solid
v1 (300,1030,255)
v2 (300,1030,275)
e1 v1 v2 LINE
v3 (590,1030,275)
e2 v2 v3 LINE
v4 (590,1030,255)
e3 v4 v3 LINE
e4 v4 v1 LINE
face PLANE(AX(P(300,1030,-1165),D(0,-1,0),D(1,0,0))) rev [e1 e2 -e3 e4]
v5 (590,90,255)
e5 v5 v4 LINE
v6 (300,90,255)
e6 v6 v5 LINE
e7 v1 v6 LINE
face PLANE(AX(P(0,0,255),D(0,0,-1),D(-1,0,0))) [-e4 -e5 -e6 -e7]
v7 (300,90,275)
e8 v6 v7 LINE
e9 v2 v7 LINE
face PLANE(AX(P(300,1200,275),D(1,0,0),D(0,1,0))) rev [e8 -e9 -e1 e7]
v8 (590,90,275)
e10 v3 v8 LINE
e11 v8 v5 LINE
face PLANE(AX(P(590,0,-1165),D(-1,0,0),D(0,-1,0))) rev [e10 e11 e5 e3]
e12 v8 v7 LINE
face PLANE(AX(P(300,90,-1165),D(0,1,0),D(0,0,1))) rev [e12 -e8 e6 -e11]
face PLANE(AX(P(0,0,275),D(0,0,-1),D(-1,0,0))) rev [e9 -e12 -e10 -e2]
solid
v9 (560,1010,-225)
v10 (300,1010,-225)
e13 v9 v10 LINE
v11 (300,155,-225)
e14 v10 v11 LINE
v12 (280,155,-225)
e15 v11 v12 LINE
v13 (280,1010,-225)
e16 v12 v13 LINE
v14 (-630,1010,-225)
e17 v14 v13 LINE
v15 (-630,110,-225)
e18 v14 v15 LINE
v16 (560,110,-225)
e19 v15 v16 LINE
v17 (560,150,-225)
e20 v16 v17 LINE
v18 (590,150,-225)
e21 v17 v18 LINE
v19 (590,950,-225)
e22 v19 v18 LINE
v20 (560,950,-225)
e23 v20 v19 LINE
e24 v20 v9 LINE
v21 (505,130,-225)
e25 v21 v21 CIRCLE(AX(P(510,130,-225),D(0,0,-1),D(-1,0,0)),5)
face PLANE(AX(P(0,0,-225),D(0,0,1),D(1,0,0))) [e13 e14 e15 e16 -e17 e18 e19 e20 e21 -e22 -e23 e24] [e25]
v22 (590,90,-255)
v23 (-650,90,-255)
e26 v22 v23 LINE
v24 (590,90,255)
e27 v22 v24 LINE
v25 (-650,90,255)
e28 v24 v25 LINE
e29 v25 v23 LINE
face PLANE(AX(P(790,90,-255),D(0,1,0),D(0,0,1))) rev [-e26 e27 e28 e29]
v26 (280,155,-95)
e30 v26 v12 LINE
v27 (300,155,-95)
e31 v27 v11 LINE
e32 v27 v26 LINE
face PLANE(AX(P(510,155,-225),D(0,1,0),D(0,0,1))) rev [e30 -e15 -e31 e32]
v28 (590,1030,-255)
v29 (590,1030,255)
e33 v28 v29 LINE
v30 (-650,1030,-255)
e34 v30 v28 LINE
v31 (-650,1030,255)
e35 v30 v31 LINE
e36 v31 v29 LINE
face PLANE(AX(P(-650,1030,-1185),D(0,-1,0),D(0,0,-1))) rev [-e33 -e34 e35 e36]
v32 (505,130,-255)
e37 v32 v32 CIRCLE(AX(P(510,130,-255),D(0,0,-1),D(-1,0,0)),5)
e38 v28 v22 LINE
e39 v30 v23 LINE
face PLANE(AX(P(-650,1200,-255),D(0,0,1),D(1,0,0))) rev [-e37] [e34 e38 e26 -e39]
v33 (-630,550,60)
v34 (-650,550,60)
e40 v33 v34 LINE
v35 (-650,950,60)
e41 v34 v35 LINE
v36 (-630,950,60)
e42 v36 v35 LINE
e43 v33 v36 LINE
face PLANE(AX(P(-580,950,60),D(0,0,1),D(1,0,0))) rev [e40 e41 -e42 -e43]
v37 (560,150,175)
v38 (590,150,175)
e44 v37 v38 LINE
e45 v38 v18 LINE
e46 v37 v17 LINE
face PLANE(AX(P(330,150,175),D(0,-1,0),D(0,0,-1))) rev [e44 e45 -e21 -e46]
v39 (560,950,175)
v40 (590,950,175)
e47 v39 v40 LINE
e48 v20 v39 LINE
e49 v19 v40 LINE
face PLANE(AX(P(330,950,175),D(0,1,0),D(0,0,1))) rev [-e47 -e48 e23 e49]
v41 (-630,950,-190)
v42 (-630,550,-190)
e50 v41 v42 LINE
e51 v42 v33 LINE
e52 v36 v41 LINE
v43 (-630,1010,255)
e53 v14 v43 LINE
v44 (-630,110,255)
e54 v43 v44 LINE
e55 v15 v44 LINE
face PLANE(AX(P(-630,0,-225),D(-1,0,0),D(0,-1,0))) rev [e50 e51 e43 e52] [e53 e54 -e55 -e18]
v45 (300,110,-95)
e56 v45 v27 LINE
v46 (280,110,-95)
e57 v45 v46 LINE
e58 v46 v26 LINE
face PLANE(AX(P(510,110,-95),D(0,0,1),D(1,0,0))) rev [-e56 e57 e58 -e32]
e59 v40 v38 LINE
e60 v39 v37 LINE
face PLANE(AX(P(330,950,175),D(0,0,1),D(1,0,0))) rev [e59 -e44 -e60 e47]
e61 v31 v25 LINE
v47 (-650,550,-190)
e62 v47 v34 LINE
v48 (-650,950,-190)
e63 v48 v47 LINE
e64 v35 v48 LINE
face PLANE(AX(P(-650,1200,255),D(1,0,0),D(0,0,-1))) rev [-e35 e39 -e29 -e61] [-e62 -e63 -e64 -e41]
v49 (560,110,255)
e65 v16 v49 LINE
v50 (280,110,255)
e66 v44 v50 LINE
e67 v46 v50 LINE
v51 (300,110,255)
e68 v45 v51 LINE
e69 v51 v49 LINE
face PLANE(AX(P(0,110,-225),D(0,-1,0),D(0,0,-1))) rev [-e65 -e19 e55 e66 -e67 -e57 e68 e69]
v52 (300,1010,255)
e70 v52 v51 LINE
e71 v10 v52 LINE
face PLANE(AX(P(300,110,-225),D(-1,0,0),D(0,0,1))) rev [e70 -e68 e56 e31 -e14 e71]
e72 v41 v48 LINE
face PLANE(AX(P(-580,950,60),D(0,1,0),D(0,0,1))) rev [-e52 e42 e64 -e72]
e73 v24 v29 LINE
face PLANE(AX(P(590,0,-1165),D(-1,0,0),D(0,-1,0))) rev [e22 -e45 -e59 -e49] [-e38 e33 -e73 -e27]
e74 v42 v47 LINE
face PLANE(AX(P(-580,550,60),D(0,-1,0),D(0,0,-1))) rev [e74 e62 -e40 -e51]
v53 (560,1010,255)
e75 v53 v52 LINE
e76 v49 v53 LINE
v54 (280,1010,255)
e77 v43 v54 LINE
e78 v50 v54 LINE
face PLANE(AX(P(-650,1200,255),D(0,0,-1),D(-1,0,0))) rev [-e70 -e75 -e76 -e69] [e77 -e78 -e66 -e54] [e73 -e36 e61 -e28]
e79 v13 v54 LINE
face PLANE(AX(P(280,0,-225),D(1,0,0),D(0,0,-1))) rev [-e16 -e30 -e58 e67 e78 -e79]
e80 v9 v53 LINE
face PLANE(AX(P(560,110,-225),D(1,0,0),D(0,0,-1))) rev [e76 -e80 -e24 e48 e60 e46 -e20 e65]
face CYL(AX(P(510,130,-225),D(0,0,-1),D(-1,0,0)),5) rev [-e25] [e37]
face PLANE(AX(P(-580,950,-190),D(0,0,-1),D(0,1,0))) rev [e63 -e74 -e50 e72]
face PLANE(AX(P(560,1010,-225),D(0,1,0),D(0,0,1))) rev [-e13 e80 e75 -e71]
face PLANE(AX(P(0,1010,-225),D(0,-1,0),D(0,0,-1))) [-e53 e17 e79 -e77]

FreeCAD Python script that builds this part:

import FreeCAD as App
import Part
import Sketcher
from FreeCAD import Vector


def add_polygon(sketch, points):
    """Adds a closed chain of lines whose ends are joined by coincident constraints."""
    first, n = sketch.GeometryCount, len(points)
    for a, b in zip(points, points[1:] + points[:1]):
        sketch.addGeometry(Part.LineSegment(App.Vector(*a, 0), App.Vector(*b, 0)), False)
    for i in range(n):
        sketch.addConstraint(Sketcher.Constraint("Coincident", first + i, 2, first + (i + 1) % n, 1))

doc = App.newDocument("Part")
params = doc.addObject("Spreadsheet::Sheet", "Params")
for row, (alias, value) in enumerate([
    ("sketch1_width", "1300 mm"),
    ("sketch1_height", "510 mm"),
    ("pad1_length", "1200 mm"),
    ("sketch2_width", "910 mm"),
    ("sketch2_height", "900 mm"),
    ("pocket1_length", "480 mm"),
    ("sketch3_width", "400 mm"),
    ("sketch3_height", "250 mm"),
    ("pocket2_length", "70 mm"),
    ("sketch4_width", "260 mm"),
    ("sketch4_height", "900 mm"),
    ("pocket3_length", "480 mm"),
    ("sketch5_width", "800 mm"),
    ("sketch5_height", "400 mm"),
    ("pocket4_length", "320 mm"),
    ("sketch6_width", "45 mm"),
    ("sketch6_height", "130 mm"),
    ("pocket5_length", "230 mm"),
    ("sketch7_width", "90 mm"),
    ("sketch7_height", "510 mm"),
    ("pocket6_length", "1440 mm"),
    ("sketch8_width", "350 mm"),
    ("sketch8_height", "1200 mm"),
    ("pad2_length", "20 mm"),
    ("sketch9_width", "60 mm"),
    ("sketch9_height", "1200 mm"),
    ("pad3_length", "1440 mm"),
    ("sketch10_height", "170 mm"),
    ("pocket7_length", "1440 mm"),
    ("sketch11_diameter", "10 mm"),
    ("pocket8_length", "30 mm"),
    ("sketch12_width", "290 mm"),
    ("sketch12_height", "90 mm"),
    ("pocket9_length", "1440 mm"),
    ("sketch13_width", "290 mm"),
    ("sketch13_height", "70 mm"),
    ("pocket10_length", "1440 mm"),
    ("sketch14_width", "290 mm"),
    ("sketch14_height", "100 mm"),
    ("pocket11_length", "1440 mm"),
], start=1):
    params.set(f"A{row}", alias)
    params.set(f"B{row}", "=" + value)
    params.setAlias(f"B{row}", alias)

body = doc.addObject("PartDesign::Body", "Body")

sketch1 = body.newObject("Sketcher::SketchObject", "Sketch")
sketch1.AttachmentSupport = (doc.getObject("XZ_Plane"), [""])
sketch1.MapMode = "FlatFace"
add_polygon(sketch1, [(-650, -255), (-650, 255), (650, 255), (650, -255)])
sketch1.addConstraint(Sketcher.Constraint("Vertical", 0))
sketch1.addConstraint(Sketcher.Constraint("Horizontal", 1))
sketch1.addConstraint(Sketcher.Constraint("Vertical", 2))
sketch1.addConstraint(Sketcher.Constraint("Horizontal", 3))
sketch1.addConstraint(Sketcher.Constraint("Symmetric", 0, 2, 2, 2, -1, 1))
sketch1.addConstraint(Sketcher.Constraint("DistanceX", 1, 1, 1, 2, 1300.0))
sketch1.addConstraint(Sketcher.Constraint("DistanceY", 0, 1, 0, 2, 510.0))
sketch1.setExpression("Constraints[9]", "Params.sketch1_width")
sketch1.setExpression("Constraints[10]", "Params.sketch1_height")
pad1 = body.newObject("PartDesign::Pad", "Pad")
pad1.Profile = sketch1
pad1.setExpression("Length", "Params.pad1_length")
pad1.Reversed = True

sketch2 = body.newObject("Sketcher::SketchObject", "Sketch001")
sketch2.AttachmentSupport = (doc.getObject("XY_Plane"), [""])
sketch2.MapMode = "FlatFace"
sketch2.AttachmentOffset = App.Placement(Vector(0, 0, 255), App.Rotation())
add_polygon(sketch2, [(-630, 1010), (-630, 110), (280, 110), (280, 1010)])
sketch2.addConstraint(Sketcher.Constraint("Vertical", 0))
sketch2.addConstraint(Sketcher.Constraint("Horizontal", 1))
sketch2.addConstraint(Sketcher.Constraint("Vertical", 2))
sketch2.addConstraint(Sketcher.Constraint("Horizontal", 3))
sketch2.addConstraint(Sketcher.Constraint("DistanceX", 1, 1, 1, 2, 910.0))
sketch2.addConstraint(Sketcher.Constraint("DistanceY", 0, 2, 0, 1, 900.0))
sketch2.addConstraint(Sketcher.Constraint("DistanceX", 0, 2, -1, 1, 630.0))
sketch2.addConstraint(Sketcher.Constraint("DistanceY", -1, 1, 0, 2, 110.0))
sketch2.setExpression("Constraints[8]", "Params.sketch2_width")
sketch2.setExpression("Constraints[9]", "Params.sketch2_height")
pocket1 = body.newObject("PartDesign::Pocket", "Pocket")
pocket1.Profile = sketch2
pocket1.setExpression("Length", "Params.pocket1_length")

sketch3 = body.newObject("Sketcher::SketchObject", "Sketch002")
sketch3.AttachmentSupport = (doc.getObject("YZ_Plane"), [""])
sketch3.MapMode = "FlatFace"
sketch3.AttachmentOffset = App.Placement(Vector(0, 0, -650), App.Rotation())
add_polygon(sketch3, [(950, -190), (550, -190), (550, 60), (950, 60)])
sketch3.addConstraint(Sketcher.Constraint("Horizontal", 0))
sketch3.addConstraint(Sketcher.Constraint("Vertical", 1))
sketch3.addConstraint(Sketcher.Constraint("Horizontal", 2))
sketch3.addConstraint(Sketcher.Constraint("Vertical", 3))
sketch3.addConstraint(Sketcher.Constraint("DistanceX", 0, 2, 0, 1, 400.0))
sketch3.addConstraint(Sketcher.Constraint("DistanceY", 1, 1, 1, 2, 250.0))
sketch3.addConstraint(Sketcher.Constraint("DistanceX", -1, 1, 0, 2, 550.0))
sketch3.addConstraint(Sketcher.Constraint("DistanceY", 0, 2, -1, 1, 190.0))
sketch3.setExpression("Constraints[8]", "Params.sketch3_width")
sketch3.setExpression("Constraints[9]", "Params.sketch3_height")
pocket2 = body.newObject("PartDesign::Pocket", "Pocket001")
pocket2.Profile = sketch3
pocket2.setExpression("Length", "Params.pocket2_length")
pocket2.Reversed = True

sketch4 = body.newObject("Sketcher::SketchObject", "Sketch003")
sketch4.AttachmentSupport = (doc.getObject("XY_Plane"), [""])
sketch4.MapMode = "FlatFace"
sketch4.AttachmentOffset = App.Placement(Vector(0, 0, 255), App.Rotation())
add_polygon(sketch4, [(300, 1010), (300, 110), (560, 110), (560, 1010)])
sketch4.addConstraint(Sketcher.Constraint("Vertical", 0))
sketch4.addConstraint(Sketcher.Constraint("Horizontal", 1))
sketch4.addConstraint(Sketcher.Constraint("Vertical", 2))
sketch4.addConstraint(Sketcher.Constraint("Horizontal", 3))
sketch4.addConstraint(Sketcher.Constraint("DistanceX", 1, 1, 1, 2, 260.0))
sketch4.addConstraint(Sketcher.Constraint("DistanceY", 0, 2, 0, 1, 900.0))
sketch4.addConstraint(Sketcher.Constraint("DistanceX", -1, 1, 0, 2, 300.0))
sketch4.addConstraint(Sketcher.Constraint("DistanceY", -1, 1, 0, 2, 110.0))
sketch4.setExpression("Constraints[8]", "Params.sketch4_width")
sketch4.setExpression("Constraints[9]", "Params.sketch4_height")
pocket3 = body.newObject("PartDesign::Pocket", "Pocket002")
pocket3.Profile = sketch4
pocket3.setExpression("Length", "Params.pocket3_length")

sketch5 = body.newObject("Sketcher::SketchObject", "Sketch004")
sketch5.AttachmentSupport = (doc.getObject("YZ_Plane"), [""])
sketch5.MapMode = "FlatFace"
sketch5.AttachmentOffset = App.Placement(Vector(0, 0, 650), App.Rotation())
add_polygon(sketch5, [(950, 175), (150, 175), (150, -225), (950, -225)])
sketch5.addConstraint(Sketcher.Constraint("Horizontal", 0))
sketch5.addConstraint(Sketcher.Constraint("Vertical", 1))
sketch5.addConstraint(Sketcher.Constraint("Horizontal", 2))
sketch5.addConstraint(Sketcher.Constraint("Vertical", 3))
sketch5.addConstraint(Sketcher.Constraint("DistanceX", 0, 2, 0, 1, 800.0))
sketch5.addConstraint(Sketcher.Constraint("DistanceY", 1, 2, 1, 1, 400.0))
sketch5.addConstraint(Sketcher.Constraint("DistanceX", -1, 1, 0, 2, 150.0))
sketch5.addConstraint(Sketcher.Constraint("DistanceY", -1, 1, 0, 2, 175.0))
sketch5.setExpression("Constraints[8]", "Params.sketch5_width")
sketch5.setExpression("Constraints[9]", "Params.sketch5_height")
pocket4 = body.newObject("PartDesign::Pocket", "Pocket003")
pocket4.Profile = sketch5
pocket4.setExpression("Length", "Params.pocket4_length")

sketch6 = body.newObject("Sketcher::SketchObject", "Sketch005")
sketch6.AttachmentSupport = (doc.getObject("YZ_Plane"), [""])
sketch6.MapMode = "FlatFace"
sketch6.AttachmentOffset = App.Placement(Vector(0, 0, 280), App.Rotation())
add_polygon(sketch6, [(155, -225), (110, -225), (110, -95), (155, -95)])
sketch6.addConstraint(Sketcher.Constraint("Horizontal", 0))
sketch6.addConstraint(Sketcher.Constraint("Vertical", 1))
sketch6.addConstraint(Sketcher.Constraint("Horizontal", 2))
sketch6.addConstraint(Sketcher.Constraint("Vertical", 3))
sketch6.addConstraint(Sketcher.Constraint("DistanceX", 0, 2, 0, 1, 45.0))
sketch6.addConstraint(Sketcher.Constraint("DistanceY", 1, 1, 1, 2, 130.0))
sketch6.addConstraint(Sketcher.Constraint("DistanceX", -1, 1, 0, 2, 110.0))
sketch6.addConstraint(Sketcher.Constraint("DistanceY", 0, 2, -1, 1, 225.0))
sketch6.setExpression("Constraints[8]", "Params.sketch6_width")
sketch6.setExpression("Constraints[9]", "Params.sketch6_height")
pocket5 = body.newObject("PartDesign::Pocket", "Pocket004")
pocket5.Profile = sketch6
pocket5.setExpression("Length", "Params.pocket5_length")
pocket5.Reversed = True

sketch7 = body.newObject("Sketcher::SketchObject", "Sketch006")
sketch7.AttachmentSupport = (doc.getObject("YZ_Plane"), [""])
sketch7.MapMode = "FlatFace"
sketch7.AttachmentOffset = App.Placement(Vector(0, 0, -650), App.Rotation())
add_polygon(sketch7, [(90, -255), (0, -255), (0, 255), (90, 255)])
sketch7.addConstraint(Sketcher.Constraint("Horizontal", 0))
sketch7.addConstraint(Sketcher.Constraint("Vertical", 1))
sketch7.addConstraint(Sketcher.Constraint("Horizontal", 2))
sketch7.addConstraint(Sketcher.Constraint("Vertical", 3))
sketch7.addConstraint(Sketcher.Constraint("Symmetric", 0, 2, 1, 2, -1, 1))
sketch7.addConstraint(Sketcher.Constraint("DistanceX", 0, 2, 0, 1, 90.0))
sketch7.addConstraint(Sketcher.Constraint("DistanceY", 1, 1, 1, 2, 510.0))
sketch7.setExpression("Constraints[9]", "Params.sketch7_width")
sketch7.setExpression("Constraints[10]", "Params.sketch7_height")
pocket6 = body.newObject("PartDesign::Pocket", "Pocket005")
pocket6.Profile = sketch7
pocket6.setExpression("Length", "Params.pocket6_length")
pocket6.Reversed = True
body2 = doc.addObject("PartDesign::Body", "Body001")

sketch8 = body2.newObject("Sketcher::SketchObject", "Sketch007")
sketch8.AttachmentSupport = (doc.getObject("XY_Plane001"), [""])
sketch8.MapMode = "FlatFace"
sketch8.AttachmentOffset = App.Placement(Vector(0, 0, 255), App.Rotation())
add_polygon(sketch8, [(300, 1200), (300, 0), (650, 0), (650, 1200)])
sketch8.addConstraint(Sketcher.Constraint("Vertical", 0))
sketch8.addConstraint(Sketcher.Constraint("Horizontal", 1))
sketch8.addConstraint(Sketcher.Constraint("Vertical", 2))
sketch8.addConstraint(Sketcher.Constraint("Horizontal", 3))
sketch8.addConstraint(Sketcher.Constraint("PointOnObject", 0, 2, -1))
sketch8.addConstraint(Sketcher.Constraint("DistanceX", 1, 1, 1, 2, 350.0))
sketch8.addConstraint(Sketcher.Constraint("DistanceY", 0, 2, 0, 1, 1200.0))
sketch8.addConstraint(Sketcher.Constraint("DistanceX", -1, 1, 0, 2, 300.0))
sketch8.setExpression("Constraints[9]", "Params.sketch8_width")
sketch8.setExpression("Constraints[10]", "Params.sketch8_height")
pad2 = body2.newObject("PartDesign::Pad", "Pad001")
pad2.Profile = sketch8
pad2.setExpression("Length", "Params.pad2_length")
body3 = doc.addObject("PartDesign::Body", "Body002")

sketch9 = body3.newObject("Sketcher::SketchObject", "Sketch008")
sketch9.AttachmentSupport = (doc.getObject("XY_Plane002"), [""])
sketch9.MapMode = "FlatFace"
sketch9.AttachmentOffset = App.Placement(Vector(0, 0, 275), App.Rotation())
add_polygon(sketch9, [(650, 1200), (590, 1200), (590, 0), (650, 0)])
sketch9.addConstraint(Sketcher.Constraint("Horizontal", 0))
sketch9.addConstraint(Sketcher.Constraint("Vertical", 1))
sketch9.addConstraint(Sketcher.Constraint("Horizontal", 2))
sketch9.addConstraint(Sketcher.Constraint("Vertical", 3))
sketch9.addConstraint(Sketcher.Constraint("PointOnObject", 1, 2, -1))
sketch9.addConstraint(Sketcher.Constraint("DistanceX", 0, 2, 0, 1, 60.0))
sketch9.addConstraint(Sketcher.Constraint("DistanceY", 1, 2, 1, 1, 1200.0))
sketch9.addConstraint(Sketcher.Constraint("DistanceX", -1, 1, 0, 2, 590.0))
sketch9.setExpression("Constraints[9]", "Params.sketch9_width")
sketch9.setExpression("Constraints[10]", "Params.sketch9_height")
pad3 = body3.newObject("PartDesign::Pad", "Pad002")
pad3.Profile = sketch9
pad3.setExpression("Length", "Params.pad3_length")
pad3.Reversed = True
doc.recompute()

body4 = doc.addObject("PartDesign::Body", "Body003")
body4.BaseFeature = body3
boolean = body.newObject("PartDesign::Boolean", "Boolean")
boolean.Type = "Cut"
boolean.addObjects([body4])
doc.recompute()

sketch10 = body.newObject("Sketcher::SketchObject", "Sketch009")
sketch10.AttachmentSupport = (doc.getObject("XY_Plane"), [""])
sketch10.MapMode = "FlatFace"
sketch10.AttachmentOffset = App.Placement(Vector(0, 0, 255), App.Rotation())
add_polygon(sketch10, [(-650, 1200), (-650, 1030), (653.361234, 1030), (653.361234, 1200)])
sketch10.addConstraint(Sketcher.Constraint("Vertical", 0))
sketch10.addConstraint(Sketcher.Constraint("Horizontal", 1))
sketch10.addConstraint(Sketcher.Constraint("Vertical", 2))
sketch10.addConstraint(Sketcher.Constraint("Horizontal", 3))
sketch10.addConstraint(Sketcher.Constraint("DistanceY", 0, 2, 0, 1, 170.0))
sketch10.addConstraint(Sketcher.Constraint("DistanceX", 0, 2, -1, 1, 650.0))
sketch10.addConstraint(Sketcher.Constraint("DistanceY", -1, 1, 0, 2, 1030.0))
sketch10.addConstraint(Sketcher.Constraint("DistanceX", 1, 1, 1, 2, 1303.361234))
sketch10.setExpression("Constraints[8]", "Params.sketch10_height")
pocket7 = body.newObject("PartDesign::Pocket", "Pocket006")
pocket7.Profile = sketch10
pocket7.setExpression("Length", "Params.pocket7_length")

sketch11 = body.newObject("Sketcher::SketchObject", "Sketch010")
sketch11.AttachmentSupport = (doc.getObject("XY_Plane"), [""])
sketch11.MapMode = "FlatFace"
sketch11.AttachmentOffset = App.Placement(Vector(0, 0, -255), App.Rotation())
sketch11.addGeometry(Part.Circle(Vector(510, 130, 0), Vector(0, 0, 1), 5), False)
sketch11.addConstraint(Sketcher.Constraint("Diameter", 0, 10.0))
sketch11.addConstraint(Sketcher.Constraint("DistanceX", -1, 1, 0, 3, 510.0))
sketch11.addConstraint(Sketcher.Constraint("DistanceY", -1, 1, 0, 3, 130.0))
sketch11.setExpression("Constraints[0]", "Params.sketch11_diameter")
pocket8 = body.newObject("PartDesign::Pocket", "Pocket007")
pocket8.Profile = sketch11
pocket8.setExpression("Length", "Params.pocket8_length")
pocket8.Reversed = True
doc.recompute()

boolean2 = body2.newObject("PartDesign::Boolean", "Boolean001")
boolean2.Type = "Cut"
boolean2.addObjects([body3])

sketch12 = body2.newObject("Sketcher::SketchObject", "Sketch011")
sketch12.AttachmentSupport = (doc.getObject("XY_Plane001"), [""])
sketch12.MapMode = "FlatFace"
sketch12.AttachmentOffset = App.Placement(Vector(0, 0, 275), App.Rotation())
add_polygon(sketch12, [(300, 90), (300, 0), (590, 0), (590, 90)])
sketch12.addConstraint(Sketcher.Constraint("Vertical", 0))
sketch12.addConstraint(Sketcher.Constraint("Horizontal", 1))
sketch12.addConstraint(Sketcher.Constraint("Vertical", 2))
sketch12.addConstraint(Sketcher.Constraint("Horizontal", 3))
sketch12.addConstraint(Sketcher.Constraint("PointOnObject", 0, 2, -1))
sketch12.addConstraint(Sketcher.Constraint("DistanceX", 1, 1, 1, 2, 290.0))
sketch12.addConstraint(Sketcher.Constraint("DistanceY", 0, 2, 0, 1, 90.0))
sketch12.addConstraint(Sketcher.Constraint("DistanceX", -1, 1, 0, 2, 300.0))
sketch12.setExpression("Constraints[9]", "Params.sketch12_width")
sketch12.setExpression("Constraints[10]", "Params.sketch12_height")
pocket9 = body2.newObject("PartDesign::Pocket", "Pocket008")
pocket9.Profile = sketch12
pocket9.setExpression("Length", "Params.pocket9_length")

sketch13 = body2.newObject("Sketcher::SketchObject", "Sketch012")
sketch13.AttachmentSupport = (doc.getObject("XY_Plane001"), [""])
sketch13.MapMode = "FlatFace"
sketch13.AttachmentOffset = App.Placement(Vector(0, 0, 275), App.Rotation())
add_polygon(sketch13, [(300, 1200), (300, 1130), (590, 1130), (590, 1200)])
sketch13.addConstraint(Sketcher.Constraint("Vertical", 0))
sketch13.addConstraint(Sketcher.Constraint("Horizontal", 1))
sketch13.addConstraint(Sketcher.Constraint("Vertical", 2))
sketch13.addConstraint(Sketcher.Constraint("Horizontal", 3))
sketch13.addConstraint(Sketcher.Constraint("DistanceX", 1, 1, 1, 2, 290.0))
sketch13.addConstraint(Sketcher.Constraint("DistanceY", 0, 2, 0, 1, 70.0))
sketch13.addConstraint(Sketcher.Constraint("DistanceX", -1, 1, 0, 2, 300.0))
sketch13.addConstraint(Sketcher.Constraint("DistanceY", -1, 1, 0, 2, 1130.0))
sketch13.setExpression("Constraints[8]", "Params.sketch13_width")
sketch13.setExpression("Constraints[9]", "Params.sketch13_height")
pocket10 = body2.newObject("PartDesign::Pocket", "Pocket009")
pocket10.Profile = sketch13
pocket10.setExpression("Length", "Params.pocket10_length")

sketch14 = body2.newObject("Sketcher::SketchObject", "Sketch013")
sketch14.AttachmentSupport = (doc.getObject("XY_Plane001"), [""])
sketch14.MapMode = "FlatFace"
sketch14.AttachmentOffset = App.Placement(Vector(0, 0, 275), App.Rotation())
add_polygon(sketch14, [(300, 1130), (300, 1030), (590, 1030), (590, 1130)])
sketch14.addConstraint(Sketcher.Constraint("Vertical", 0))
sketch14.addConstraint(Sketcher.Constraint("Horizontal", 1))
sketch14.addConstraint(Sketcher.Constraint("Vertical", 2))
sketch14.addConstraint(Sketcher.Constraint("Horizontal", 3))
sketch14.addConstraint(Sketcher.Constraint("DistanceX", 1, 1, 1, 2, 290.0))
sketch14.addConstraint(Sketcher.Constraint("DistanceY", 0, 2, 0, 1, 100.0))
sketch14.addConstraint(Sketcher.Constraint("DistanceX", -1, 1, 0, 2, 300.0))
sketch14.addConstraint(Sketcher.Constraint("DistanceY", -1, 1, 0, 2, 1030.0))
sketch14.setExpression("Constraints[8]", "Params.sketch14_width")
sketch14.setExpression("Constraints[9]", "Params.sketch14_height")
pocket11 = body2.newObject("PartDesign::Pocket", "Pocket010")
pocket11.Profile = sketch14
pocket11.setExpression("Length", "Params.pocket11_length")

doc.recompute()
